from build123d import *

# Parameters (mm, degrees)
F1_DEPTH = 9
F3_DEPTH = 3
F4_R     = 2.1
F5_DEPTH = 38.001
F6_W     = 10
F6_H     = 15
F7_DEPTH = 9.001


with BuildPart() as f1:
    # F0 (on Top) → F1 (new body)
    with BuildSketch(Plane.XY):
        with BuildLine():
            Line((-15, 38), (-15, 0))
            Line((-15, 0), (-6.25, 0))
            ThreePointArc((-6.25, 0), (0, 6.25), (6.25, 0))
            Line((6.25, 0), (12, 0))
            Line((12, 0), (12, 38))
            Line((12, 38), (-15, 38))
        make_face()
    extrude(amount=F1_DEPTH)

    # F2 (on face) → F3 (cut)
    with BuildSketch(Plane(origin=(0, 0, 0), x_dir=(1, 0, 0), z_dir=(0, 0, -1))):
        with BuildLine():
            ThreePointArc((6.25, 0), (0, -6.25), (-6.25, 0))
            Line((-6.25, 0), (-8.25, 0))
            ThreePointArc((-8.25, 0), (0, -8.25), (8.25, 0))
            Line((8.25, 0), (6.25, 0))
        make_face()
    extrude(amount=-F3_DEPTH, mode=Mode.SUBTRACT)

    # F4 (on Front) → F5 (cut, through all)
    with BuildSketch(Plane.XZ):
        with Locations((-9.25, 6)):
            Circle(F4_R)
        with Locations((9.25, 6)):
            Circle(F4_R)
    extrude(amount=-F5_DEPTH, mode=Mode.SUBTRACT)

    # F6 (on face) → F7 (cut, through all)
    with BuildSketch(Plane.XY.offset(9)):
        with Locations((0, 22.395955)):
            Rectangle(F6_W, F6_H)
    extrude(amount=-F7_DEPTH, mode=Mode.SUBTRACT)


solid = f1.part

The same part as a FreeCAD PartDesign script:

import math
import FreeCAD as App
import Part
import Sketcher
from FreeCAD import Vector


def add_polygon(sketch, points):
    """Adds a closed chain of lines whose ends are joined by coincident constraints."""
    first, n = sketch.GeometryCount, len(points)
    for a, b in zip(points, points[1:] + points[:1]):
        sketch.addGeometry(Part.LineSegment(App.Vector(*a, 0), App.Vector(*b, 0)), False)
    for i in range(n):
        sketch.addConstraint(Sketcher.Constraint("Coincident", first + i, 2, first + (i + 1) % n, 1))

doc = App.newDocument("Part")
body = doc.addObject("PartDesign::Body", "Body")

sketch1 = doc.addObject("Sketcher::SketchObject", "Sketch")
body.addObject(sketch1)
sketch1.AttachmentSupport = (doc.XY_Plane, [""])
sketch1.MapMode = "FlatFace"
sketch1.addGeometry([
    Part.LineSegment(Vector(-15, 38, 0), Vector(-15, 0, 0)),
    Part.LineSegment(Vector(-15, 0, 0), Vector(-6, 0, 0)),
    Part.ArcOfCircle(Part.Circle(Vector(0, 0, 0), Vector(0, 0, 1), 6), math.radians(0), math.radians(180)),
    Part.LineSegment(Vector(6, 0, 0), Vector(12, 0, 0)),
    Part.LineSegment(Vector(12, 0, 0), Vector(12, 38, 0)),
    Part.LineSegment(Vector(12, 38, 0), Vector(-15, 38, 0)),
], False)
sketch1.addConstraint([
    Sketcher.Constraint("Coincident", 0, 2, 1, 1),
    Sketcher.Constraint("Coincident", 1, 2, 2, 2),
    Sketcher.Constraint("Coincident", 2, 1, 3, 1),
    Sketcher.Constraint("Coincident", 3, 2, 4, 1),
    Sketcher.Constraint("Coincident", 4, 2, 5, 1),
    Sketcher.Constraint("Coincident", 5, 2, 0, 1),
    Sketcher.Constraint("Vertical", 0),
    Sketcher.Constraint("Horizontal", 1),
    Sketcher.Constraint("Horizontal", 3),
    Sketcher.Constraint("Vertical", 4),
    Sketcher.Constraint("Horizontal", 5),
    Sketcher.Constraint("Coincident", 2, 3, -1, 1),
    Sketcher.Constraint("PointOnObject", 0, 2, -1),
    Sketcher.Constraint("PointOnObject", 2, 1, -1),
    Sketcher.Constraint("DistanceX", 5, 2, 5, 1, 27.0),
    Sketcher.Constraint("DistanceY", 0, 2, 0, 1, 38.0),
    Sketcher.Constraint("Radius", 2, 6.25),
    Sketcher.Constraint("DistanceX", 0, 2, -1, 1, 15.0),
])
pad1 = doc.addObject("PartDesign::Pad", "Pad")
body.addObject(pad1)
pad1.Profile = sketch1
pad1.Length = 9

sketch2 = doc.addObject("Sketcher::SketchObject", "Sketch001")
body.addObject(sketch2)
sketch2.AttachmentSupport = (doc.XY_Plane, [""])
sketch2.MapMode = "FlatFace"
sketch2.addGeometry([
    Part.ArcOfCircle(Part.Circle(Vector(0, 0, 0), Vector(0, 0, 1), 6.2), math.radians(0), math.radians(180)),
    Part.LineSegment(Vector(-6.2, 0, 0), Vector(-8.2, 0, 0)),
    Part.ArcOfCircle(Part.Circle(Vector(0, 0, 0), Vector(0, 0, 1), 8.2), math.radians(0), math.radians(180)),
    Part.LineSegment(Vector(8.2, 0, 0), Vector(6.2, 0, 0)),
], False)
sketch2.addConstraint([
    Sketcher.Constraint("Coincident", 0, 2, 1, 1),
    Sketcher.Constraint("Coincident", 1, 2, 2, 2),
    Sketcher.Constraint("Coincident", 2, 1, 3, 1),
    Sketcher.Constraint("Coincident", 3, 2, 0, 1),
    Sketcher.Constraint("Horizontal", 1),
    Sketcher.Constraint("Horizontal", 3),
    Sketcher.Constraint("Coincident", 0, 3, -1, 1),
    Sketcher.Constraint("Coincident", 2, 3, -1, 1),
    Sketcher.Constraint("PointOnObject", 0, 2, -1),
    Sketcher.Constraint("PointOnObject", 2, 1, -1),
    Sketcher.Constraint("DistanceX", 1, 2, 1, 1, 2.0),
    Sketcher.Constraint("Radius", 0, 6.25),
])
pocket1 = doc.addObject("PartDesign::Pocket", "Pocket")
body.addObject(pocket1)
pocket1.Profile = sketch2
pocket1.Length = 3
pocket1.Reversed = True

sketch3 = doc.addObject("Sketcher::SketchObject", "Sketch002")
body.addObject(sketch3)
sketch3.AttachmentSupport = (doc.XZ_Plane, [""])
sketch3.MapMode = "FlatFace"
sketch3.addGeometry([
    Part.Circle(Vector(-9.2, 6, 0), Vector(0, 0, 1), 2.1),
    Part.Circle(Vector(9.2, 6, 0), Vector(0, 0, 1), 2.1),
], False)
sketch3.addConstraint([
    Sketcher.Constraint("Equal", 0, 1),
    Sketcher.Constraint("Symmetric", 0, 3, 1, 3, -2),
    Sketcher.Constraint("Diameter", 0, 4.2),
    Sketcher.Constraint("DistanceY", -1, 1, 0, 3, 6.0),
    Sketcher.Constraint("DistanceX", 0, 3, 1, 3, 18.5),
])
pocket2 = doc.addObject("PartDesign::Pocket", "Pocket001")
body.addObject(pocket2)
pocket2.Profile = sketch3
pocket2.Type = "ThroughAll"

sketch4 = doc.addObject("Sketcher::SketchObject", "Sketch003")
body.addObject(sketch4)
sketch4.AttachmentSupport = (doc.XY_Plane, [""])
sketch4.MapMode = "FlatFace"
sketch4.AttachmentOffset = App.Placement(Vector(0, 0, 9), App.Rotation())
add_polygon(sketch4, [(-5, 30), (-5, 15), (5, 15), (5, 30)])
sketch4.addConstraint([
    Sketcher.Constraint("Vertical", 0),
    Sketcher.Constraint("Horizontal", 1),
    Sketcher.Constraint("Vertical", 2),
    Sketcher.Constraint("Horizontal", 3),
    Sketcher.Constraint("DistanceX", 1, 1, 1, 2, 10.0),
    Sketcher.Constraint("DistanceY", 0, 2, 0, 1, 15.0),
    Sketcher.Constraint("DistanceX", 0, 2, -1, 1, 5.0),
    Sketcher.Constraint("DistanceY", -1, 1, 0, 2, 14.895955),
])
pocket3 = doc.addObject("PartDesign::Pocket", "Pocket002")
body.addObject(pocket3)
pocket3.Profile = sketch4
pocket3.Type = "ThroughAll"

doc.recompute()
